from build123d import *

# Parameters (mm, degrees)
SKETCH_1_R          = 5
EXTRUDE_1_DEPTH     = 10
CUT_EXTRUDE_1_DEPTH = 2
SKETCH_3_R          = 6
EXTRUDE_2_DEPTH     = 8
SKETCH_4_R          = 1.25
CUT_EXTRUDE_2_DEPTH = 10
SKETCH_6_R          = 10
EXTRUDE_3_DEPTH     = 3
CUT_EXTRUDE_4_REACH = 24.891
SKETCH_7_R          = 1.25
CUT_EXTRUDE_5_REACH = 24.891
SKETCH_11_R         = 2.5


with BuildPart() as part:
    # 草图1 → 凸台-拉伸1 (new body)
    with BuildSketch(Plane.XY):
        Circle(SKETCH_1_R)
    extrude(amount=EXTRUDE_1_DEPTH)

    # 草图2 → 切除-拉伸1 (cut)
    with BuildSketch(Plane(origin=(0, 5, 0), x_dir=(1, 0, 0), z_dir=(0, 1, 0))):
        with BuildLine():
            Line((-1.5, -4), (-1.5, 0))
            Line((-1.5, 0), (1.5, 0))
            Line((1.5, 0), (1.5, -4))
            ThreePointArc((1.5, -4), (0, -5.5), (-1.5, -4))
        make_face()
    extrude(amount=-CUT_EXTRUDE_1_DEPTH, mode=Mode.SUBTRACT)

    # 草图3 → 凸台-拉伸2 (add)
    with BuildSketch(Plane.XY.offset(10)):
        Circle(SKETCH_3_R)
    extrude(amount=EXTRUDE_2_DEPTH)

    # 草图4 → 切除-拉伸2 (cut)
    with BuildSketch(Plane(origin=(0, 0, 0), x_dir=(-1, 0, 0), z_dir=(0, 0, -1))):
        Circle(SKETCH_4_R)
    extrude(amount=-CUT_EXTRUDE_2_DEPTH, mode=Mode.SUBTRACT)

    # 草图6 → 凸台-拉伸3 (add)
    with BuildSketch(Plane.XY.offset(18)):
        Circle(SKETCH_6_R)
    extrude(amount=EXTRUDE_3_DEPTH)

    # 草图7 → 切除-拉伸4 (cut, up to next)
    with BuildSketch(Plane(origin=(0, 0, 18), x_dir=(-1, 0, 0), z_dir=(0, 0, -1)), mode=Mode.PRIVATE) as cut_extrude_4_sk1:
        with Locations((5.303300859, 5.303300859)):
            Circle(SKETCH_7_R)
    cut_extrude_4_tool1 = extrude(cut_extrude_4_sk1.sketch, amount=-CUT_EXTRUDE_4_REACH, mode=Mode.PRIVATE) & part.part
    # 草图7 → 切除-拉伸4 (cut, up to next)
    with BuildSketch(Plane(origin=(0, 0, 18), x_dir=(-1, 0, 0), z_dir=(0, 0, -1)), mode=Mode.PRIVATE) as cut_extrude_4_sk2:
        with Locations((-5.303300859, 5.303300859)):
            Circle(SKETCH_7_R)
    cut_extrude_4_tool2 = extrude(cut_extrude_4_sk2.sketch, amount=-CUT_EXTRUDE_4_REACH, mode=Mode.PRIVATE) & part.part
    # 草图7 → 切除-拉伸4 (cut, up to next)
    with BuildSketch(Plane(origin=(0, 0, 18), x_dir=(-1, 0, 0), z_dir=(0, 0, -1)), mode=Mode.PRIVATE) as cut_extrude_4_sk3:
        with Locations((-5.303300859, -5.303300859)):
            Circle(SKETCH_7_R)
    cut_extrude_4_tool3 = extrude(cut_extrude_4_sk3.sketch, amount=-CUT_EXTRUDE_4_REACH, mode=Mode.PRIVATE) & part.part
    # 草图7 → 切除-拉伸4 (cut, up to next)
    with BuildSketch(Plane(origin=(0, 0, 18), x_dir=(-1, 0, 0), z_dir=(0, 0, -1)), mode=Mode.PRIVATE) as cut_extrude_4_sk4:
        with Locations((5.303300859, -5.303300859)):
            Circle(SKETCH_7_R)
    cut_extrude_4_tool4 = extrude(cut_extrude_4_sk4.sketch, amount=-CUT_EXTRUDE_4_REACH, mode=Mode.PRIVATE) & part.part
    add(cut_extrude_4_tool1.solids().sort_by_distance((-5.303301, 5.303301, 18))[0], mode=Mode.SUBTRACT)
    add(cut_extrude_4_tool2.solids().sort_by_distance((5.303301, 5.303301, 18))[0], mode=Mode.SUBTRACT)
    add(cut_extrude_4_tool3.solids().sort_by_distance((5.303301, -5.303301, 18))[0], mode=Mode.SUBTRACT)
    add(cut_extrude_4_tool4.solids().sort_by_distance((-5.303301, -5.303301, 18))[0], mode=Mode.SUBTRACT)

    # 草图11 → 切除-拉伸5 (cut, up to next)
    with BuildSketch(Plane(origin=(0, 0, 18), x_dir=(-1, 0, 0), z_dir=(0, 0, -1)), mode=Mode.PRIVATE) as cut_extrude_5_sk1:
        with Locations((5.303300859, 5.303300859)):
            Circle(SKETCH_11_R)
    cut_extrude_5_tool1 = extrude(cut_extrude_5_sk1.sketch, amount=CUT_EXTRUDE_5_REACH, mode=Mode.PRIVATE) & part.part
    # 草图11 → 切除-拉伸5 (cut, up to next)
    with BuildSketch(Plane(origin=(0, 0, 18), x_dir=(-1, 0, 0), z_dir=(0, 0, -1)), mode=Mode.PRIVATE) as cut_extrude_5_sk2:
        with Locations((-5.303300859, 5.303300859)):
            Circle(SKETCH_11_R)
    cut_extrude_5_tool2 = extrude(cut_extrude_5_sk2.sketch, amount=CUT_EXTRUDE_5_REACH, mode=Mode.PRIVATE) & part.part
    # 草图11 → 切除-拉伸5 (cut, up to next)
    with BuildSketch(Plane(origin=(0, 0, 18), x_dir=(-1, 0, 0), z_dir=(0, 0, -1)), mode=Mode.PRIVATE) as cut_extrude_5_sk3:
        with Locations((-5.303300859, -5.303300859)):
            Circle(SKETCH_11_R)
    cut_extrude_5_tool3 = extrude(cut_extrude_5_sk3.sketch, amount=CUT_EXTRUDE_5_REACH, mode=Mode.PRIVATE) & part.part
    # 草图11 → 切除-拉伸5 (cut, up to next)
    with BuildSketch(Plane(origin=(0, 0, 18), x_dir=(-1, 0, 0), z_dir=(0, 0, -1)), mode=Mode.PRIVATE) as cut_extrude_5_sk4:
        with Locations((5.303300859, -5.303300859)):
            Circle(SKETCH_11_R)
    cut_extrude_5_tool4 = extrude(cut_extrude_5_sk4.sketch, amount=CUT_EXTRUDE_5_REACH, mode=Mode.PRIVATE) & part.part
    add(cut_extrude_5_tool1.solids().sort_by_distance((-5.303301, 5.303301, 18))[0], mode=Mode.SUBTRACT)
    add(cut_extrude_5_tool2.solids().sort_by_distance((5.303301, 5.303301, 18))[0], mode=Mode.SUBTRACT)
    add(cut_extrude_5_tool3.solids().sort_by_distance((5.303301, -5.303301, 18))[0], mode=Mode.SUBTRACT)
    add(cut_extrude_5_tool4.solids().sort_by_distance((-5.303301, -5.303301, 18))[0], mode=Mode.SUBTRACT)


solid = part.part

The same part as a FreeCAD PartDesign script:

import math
import FreeCAD as App
import Part
import Sketcher
from FreeCAD import Vector
Q = App.Units.Quantity

doc = App.newDocument("Part")
body = doc.addObject("PartDesign::Body", "Body")

# Sketch on XY plane
sketch1 = body.newObject("Sketcher::SketchObject", "Sketch")
sketch1.AttachmentSupport = (doc.getObject("XY_Plane"), [""])
sketch1.MapMode = "FlatFace"
sketch1.addGeometry(Part.Circle(Vector(0, 0, 0), Vector(0, 0, 1), 5), False)
sketch1.addConstraint([
    Sketcher.Constraint("Coincident", 0, 3, -1, 1),
    Sketcher.Constraint("Diameter", 0, Q("10 mm")),
])
pad1 = body.newObject("PartDesign::Pad", "Pad")
pad1.Profile = sketch1
pad1.Length = 10

# Sketch on XZ plane
sketch2 = body.newObject("Sketcher::SketchObject", "Sketch001")
sketch2.AttachmentSupport = (doc.getObject("XZ_Plane"), [""])
sketch2.MapMode = "FlatFace"
sketch2.AttachmentOffset = App.Placement(Vector(0, 0, -5), App.Rotation())
sketch2.addGeometry([
    Part.LineSegment(Vector(-1.5, 0, 0), Vector(-1.5, 4, 0)),
    Part.ArcOfCircle(Part.Circle(Vector(0, 4, 0), Vector(0, 0, 1), 1.5), math.radians(0), math.radians(180)),
    Part.LineSegment(Vector(1.5, 4, 0), Vector(1.5, 0, 0)),
    Part.LineSegment(Vector(1.5, 0, 0), Vector(-1.5, 0, 0)),
], False)
sketch2.addConstraint([
    Sketcher.Constraint("Tangent", 0, 2, 1, 2),
    Sketcher.Constraint("Tangent", 1, 1, 2, 1),
    Sketcher.Constraint("Coincident", 2, 2, 3, 1),
    Sketcher.Constraint("Coincident", 3, 2, 0, 1),
    Sketcher.Constraint("Vertical", 0),
    Sketcher.Constraint("Vertical", 2),
    Sketcher.Constraint("Horizontal", 3),
    Sketcher.Constraint("Symmetric", 2, 2, 3, 2, -1, 1),
    Sketcher.Constraint("Radius", 1, Q("1.5 mm")),
    Sketcher.Constraint("DistanceY", 0, 1, 0, 2, Q("4 mm")),
])
pocket1 = body.newObject("PartDesign::Pocket", "Pocket")
pocket1.Profile = sketch2
pocket1.Length = 2
pocket1.Reversed = True

# Sketch on XY plane
sketch3 = body.newObject("Sketcher::SketchObject", "Sketch002")
sketch3.AttachmentSupport = (doc.getObject("XY_Plane"), [""])
sketch3.MapMode = "FlatFace"
sketch3.AttachmentOffset = App.Placement(Vector(0, 0, 10), App.Rotation())
sketch3.addGeometry(Part.Circle(Vector(0, 0, 0), Vector(0, 0, 1), 6), False)
sketch3.addConstraint([
    Sketcher.Constraint("Coincident", 0, 3, -1, 1),
    Sketcher.Constraint("Diameter", 0, Q("12 mm")),
])
pad2 = body.newObject("PartDesign::Pad", "Pad001")
pad2.Profile = sketch3
pad2.Length = 8

# Sketch on XY plane
sketch4 = body.newObject("Sketcher::SketchObject", "Sketch003")
sketch4.AttachmentSupport = (doc.getObject("XY_Plane"), [""])
sketch4.MapMode = "FlatFace"
sketch4.addGeometry(Part.Circle(Vector(0, 0, 0), Vector(0, 0, 1), 1.2), False)
sketch4.addConstraint([
    Sketcher.Constraint("Coincident", 0, 3, -1, 1),
    Sketcher.Constraint("Diameter", 0, Q("2.5 mm")),
])
pocket2 = body.newObject("PartDesign::Pocket", "Pocket001")
pocket2.Profile = sketch4
pocket2.Length = 10
pocket2.Reversed = True

# Sketch on XY plane
sketch5 = body.newObject("Sketcher::SketchObject", "Sketch004")
sketch5.AttachmentSupport = (doc.getObject("XY_Plane"), [""])
sketch5.MapMode = "FlatFace"
sketch5.AttachmentOffset = App.Placement(Vector(0, 0, 18), App.Rotation())
sketch5.addGeometry(Part.Circle(Vector(0, 0, 0), Vector(0, 0, 1), 10), False)
sketch5.addConstraint([
    Sketcher.Constraint("Coincident", 0, 3, -1, 1),
    Sketcher.Constraint("Diameter", 0, Q("20 mm")),
])
pad3 = body.newObject("PartDesign::Pad", "Pad002")
pad3.Profile = sketch5
pad3.Length = 3

# Sketch on XY plane
sketch6 = body.newObject("Sketcher::SketchObject", "Sketch005")
sketch6.AttachmentSupport = (doc.getObject("XY_Plane"), [""])
sketch6.MapMode = "FlatFace"
sketch6.AttachmentOffset = App.Placement(Vector(0, 0, 18), App.Rotation())
sketch6.addGeometry(Part.Circle(Vector(-5.3, 5.3, 0), Vector(0, 0, 1), 1.2), False)
sketch6.addConstraint([
    Sketcher.Constraint("Diameter", 0, Q("2.5 mm")),
    Sketcher.Constraint("DistanceX", 0, 3, -1, 1, Q("5.303301 mm")),
    Sketcher.Constraint("DistanceY", -1, 1, 0, 3, Q("5.303301 mm")),
])
pocket3 = body.newObject("PartDesign::Pocket", "Pocket002")
pocket3.Profile = sketch6
pocket3.Type = "UpToFirst"
pocket3.Reversed = True

# Sketch on XY plane
sketch7 = body.newObject("Sketcher::SketchObject", "Sketch006")
sketch7.AttachmentSupport = (doc.getObject("XY_Plane"), [""])
sketch7.MapMode = "FlatFace"
sketch7.AttachmentOffset = App.Placement(Vector(0, 0, 18), App.Rotation())
sketch7.addGeometry(Part.Circle(Vector(5.3, 5.3, 0), Vector(0, 0, 1), 1.2), False)
sketch7.addConstraint([
    Sketcher.Constraint("Diameter", 0, Q("2.5 mm")),
    Sketcher.Constraint("DistanceX", -1, 1, 0, 3, Q("5.303301 mm")),
    Sketcher.Constraint("DistanceY", -1, 1, 0, 3, Q("5.303301 mm")),
])
pocket4 = body.newObject("PartDesign::Pocket", "Pocket003")
pocket4.Profile = sketch7
pocket4.Type = "UpToFirst"
pocket4.Reversed = True

# Sketch on XY plane
sketch8 = body.newObject("Sketcher::SketchObject", "Sketch007")
sketch8.AttachmentSupport = (doc.getObject("XY_Plane"), [""])
sketch8.MapMode = "FlatFace"
sketch8.AttachmentOffset = App.Placement(Vector(0, 0, 18), App.Rotation())
sketch8.addGeometry(Part.Circle(Vector(5.3, -5.3, 0), Vector(0, 0, 1), 1.2), False)
sketch8.addConstraint([
    Sketcher.Constraint("Diameter", 0, Q("2.5 mm")),
    Sketcher.Constraint("DistanceX", -1, 1, 0, 3, Q("5.303301 mm")),
    Sketcher.Constraint("DistanceY", 0, 3, -1, 1, Q("5.303301 mm")),
])
pocket5 = body.newObject("PartDesign::Pocket", "Pocket004")
pocket5.Profile = sketch8
pocket5.Type = "UpToFirst"
pocket5.Reversed = True

# Sketch on XY plane
sketch9 = body.newObject("Sketcher::SketchObject", "Sketch008")
sketch9.AttachmentSupport = (doc.getObject("XY_Plane"), [""])
sketch9.MapMode = "FlatFace"
sketch9.AttachmentOffset = App.Placement(Vector(0, 0, 18), App.Rotation())
sketch9.addGeometry(Part.Circle(Vector(-5.3, -5.3, 0), Vector(0, 0, 1), 1.2), False)
sketch9.addConstraint([
    Sketcher.Constraint("Diameter", 0, Q("2.5 mm")),
    Sketcher.Constraint("DistanceX", 0, 3, -1, 1, Q("5.303301 mm")),
    Sketcher.Constraint("DistanceY", 0, 3, -1, 1, Q("5.303301 mm")),
])
pocket6 = body.newObject("PartDesign::Pocket", "Pocket005")
pocket6.Profile = sketch9
pocket6.Type = "UpToFirst"
pocket6.Reversed = True

# Sketch on XY plane
sketch10 = body.newObject("Sketcher::SketchObject", "Sketch009")
sketch10.AttachmentSupport = (doc.getObject("XY_Plane"), [""])
sketch10.MapMode = "FlatFace"
sketch10.AttachmentOffset = App.Placement(Vector(0, 0, 18), App.Rotation())
sketch10.addGeometry(Part.Circle(Vector(-5.3, 5.3, 0), Vector(0, 0, 1), 2.5), False)
sketch10.addConstraint([
    Sketcher.Constraint("Diameter", 0, Q("5 mm")),
    Sketcher.Constraint("DistanceX", 0, 3, -1, 1, Q("5.303301 mm")),
    Sketcher.Constraint("DistanceY", -1, 1, 0, 3, Q("5.303301 mm")),
])
pocket7 = body.newObject("PartDesign::Pocket", "Pocket006")
pocket7.Profile = sketch10
pocket7.Length = 8

# Sketch on XY plane
sketch11 = body.newObject("Sketcher::SketchObject", "Sketch010")
sketch11.AttachmentSupport = (doc.getObject("XY_Plane"), [""])
sketch11.MapMode = "FlatFace"
sketch11.AttachmentOffset = App.Placement(Vector(0, 0, 18), App.Rotation())
sketch11.addGeometry(Part.Circle(Vector(5.3, 5.3, 0), Vector(0, 0, 1), 2.5), False)
sketch11.addConstraint([
    Sketcher.Constraint("Diameter", 0, Q("5 mm")),
    Sketcher.Constraint("DistanceX", -1, 1, 0, 3, Q("5.303301 mm")),
    Sketcher.Constraint("DistanceY", -1, 1, 0, 3, Q("5.303301 mm")),
])
pocket8 = body.newObject("PartDesign::Pocket", "Pocket007")
pocket8.Profile = sketch11
pocket8.Length = 8

# Sketch on XY plane
sketch12 = body.newObject("Sketcher::SketchObject", "Sketch011")
sketch12.AttachmentSupport = (doc.getObject("XY_Plane"), [""])
sketch12.MapMode = "FlatFace"
sketch12.AttachmentOffset = App.Placement(Vector(0, 0, 18), App.Rotation())
sketch12.addGeometry(Part.Circle(Vector(5.3, -5.3, 0), Vector(0, 0, 1), 2.5), False)
sketch12.addConstraint([
    Sketcher.Constraint("Diameter", 0, Q("5 mm")),
    Sketcher.Constraint("DistanceX", -1, 1, 0, 3, Q("5.303301 mm")),
    Sketcher.Constraint("DistanceY", 0, 3, -1, 1, Q("5.303301 mm")),
])
pocket9 = body.newObject("PartDesign::Pocket", "Pocket008")
pocket9.Profile = sketch12
pocket9.Length = 8

# Sketch on XY plane
sketch13 = body.newObject("Sketcher::SketchObject", "Sketch012")
sketch13.AttachmentSupport = (doc.getObject("XY_Plane"), [""])
sketch13.MapMode = "FlatFace"
sketch13.AttachmentOffset = App.Placement(Vector(0, 0, 18), App.Rotation())
sketch13.addGeometry(Part.Circle(Vector(-5.3, -5.3, 0), Vector(0, 0, 1), 2.5), False)
sketch13.addConstraint([
    Sketcher.Constraint("Diameter", 0, Q("5 mm")),
    Sketcher.Constraint("DistanceX", 0, 3, -1, 1, Q("5.303301 mm")),
    Sketcher.Constraint("DistanceY", 0, 3, -1, 1, Q("5.303301 mm")),
])
pocket10 = body.newObject("PartDesign::Pocket", "Pocket009")
pocket10.Profile = sketch13
pocket10.Length = 8

doc.recompute()
